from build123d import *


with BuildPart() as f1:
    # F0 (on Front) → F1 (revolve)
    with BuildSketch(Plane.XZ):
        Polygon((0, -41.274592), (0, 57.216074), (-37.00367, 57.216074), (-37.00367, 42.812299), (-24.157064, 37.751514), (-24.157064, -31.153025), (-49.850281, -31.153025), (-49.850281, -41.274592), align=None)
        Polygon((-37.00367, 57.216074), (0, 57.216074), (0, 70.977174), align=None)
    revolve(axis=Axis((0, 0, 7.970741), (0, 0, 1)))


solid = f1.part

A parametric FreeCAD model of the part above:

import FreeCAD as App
import Part
import Sketcher

doc = App.newDocument("Part")
body = doc.addObject("PartDesign::Body", "Body")

sketch1 = body.newObject("Sketcher::SketchObject", "Sketch")
sketch1.AttachmentSupport = (doc.getObject("XZ_Plane"), [""])
sketch1.MapMode = "FlatFace"
sketch1.addGeometry([
    Part.LineSegment(App.Vector(0, -41, 0), App.Vector(0, 71, 0)),
    Part.LineSegment(App.Vector(0, 71, 0), App.Vector(-37, 57, 0)),
    Part.LineSegment(App.Vector(-37, 57, 0), App.Vector(-37, 43, 0)),
    Part.LineSegment(App.Vector(-37, 43, 0), App.Vector(-24, 38, 0)),
    Part.LineSegment(App.Vector(-24, 38, 0), App.Vector(-24, -31, 0)),
    Part.LineSegment(App.Vector(-24, -31, 0), App.Vector(-50, -31, 0)),
    Part.LineSegment(App.Vector(-50, -31, 0), App.Vector(-50, -41, 0)),
    Part.LineSegment(App.Vector(-50, -41, 0), App.Vector(0, -41, 0)),
], False)
sketch1.addConstraint([
    Sketcher.Constraint("Coincident", 0, 2, 1, 1),
    Sketcher.Constraint("Coincident", 1, 2, 2, 1),
    Sketcher.Constraint("Coincident", 2, 2, 3, 1),
    Sketcher.Constraint("Coincident", 3, 2, 4, 1),
    Sketcher.Constraint("Coincident", 4, 2, 5, 1),
    Sketcher.Constraint("Coincident", 5, 2, 6, 1),
    Sketcher.Constraint("Coincident", 6, 2, 7, 1),
    Sketcher.Constraint("Coincident", 7, 2, 0, 1),
    Sketcher.Constraint("Vertical", 0),
    Sketcher.Constraint("Vertical", 2),
    Sketcher.Constraint("Vertical", 4),
    Sketcher.Constraint("Horizontal", 5),
    Sketcher.Constraint("Vertical", 6),
    Sketcher.Constraint("Horizontal", 7),
    Sketcher.Constraint("PointOnObject", 0, 2, -2),
    Sketcher.Constraint("DistanceX", 7, 1, 7, 2, 49.850281),
    Sketcher.Constraint("DistanceY", 4, 2, 4, 1, 68.904539),
    Sketcher.Constraint("DistanceY", -1, 1, 2, 2, 42.812299),
    Sketcher.Constraint("DistanceY", 1, 2, 0, 2, 13.7611),
    Sketcher.Constraint("DistanceY", 4, 2, 1, 2, 88.369099),
    Sketcher.Constraint("Distance", 1, 39.479608),
    Sketcher.Constraint("Distance", 3, 13.807492),
    Sketcher.Constraint("DistanceX", 5, 2, 5, 1, 25.693217),
    Sketcher.Constraint("DistanceY", 0, 1, 0, 2, 112.251766),
])
revolution = body.newObject("PartDesign::Revolution", "Revolution")
revolution.Profile = sketch1
revolution.ReferenceAxis = (sketch1, ["V_Axis"])
revolution.Angle = 360

doc.recompute()
